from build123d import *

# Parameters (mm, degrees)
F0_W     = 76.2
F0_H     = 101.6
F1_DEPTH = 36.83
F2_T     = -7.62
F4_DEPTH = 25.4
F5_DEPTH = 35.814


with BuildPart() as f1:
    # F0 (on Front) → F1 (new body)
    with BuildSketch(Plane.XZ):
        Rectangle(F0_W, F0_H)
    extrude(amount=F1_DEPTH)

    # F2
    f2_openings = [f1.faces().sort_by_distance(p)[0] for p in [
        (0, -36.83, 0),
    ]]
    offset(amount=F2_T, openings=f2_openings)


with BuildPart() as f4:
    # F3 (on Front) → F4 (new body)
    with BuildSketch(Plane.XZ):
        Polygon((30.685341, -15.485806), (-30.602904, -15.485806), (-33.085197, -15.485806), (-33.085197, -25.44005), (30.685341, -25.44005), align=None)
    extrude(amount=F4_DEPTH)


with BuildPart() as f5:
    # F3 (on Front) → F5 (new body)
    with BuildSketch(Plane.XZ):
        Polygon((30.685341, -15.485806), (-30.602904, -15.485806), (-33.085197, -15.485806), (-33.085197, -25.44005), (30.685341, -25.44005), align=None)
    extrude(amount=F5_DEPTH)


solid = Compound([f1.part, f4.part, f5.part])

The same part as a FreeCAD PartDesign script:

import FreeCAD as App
import Part
import Sketcher
from FreeCAD import Vector
Q = App.Units.Quantity


def faces_at(feature, points):
    """Names of the faces that lie closest to the given points."""
    faces = feature.Shape.Faces
    near = lambda p: min(range(len(faces)), key=lambda i: faces[i].distToShape(Part.Vertex(*p))[0])
    return sorted({f"Face{near(p) + 1}" for p in points})


def add_polygon(sketch, points):
    """Adds a closed chain of lines whose ends are joined by coincident constraints."""
    first, n = sketch.GeometryCount, len(points)
    for a, b in zip(points, points[1:] + points[:1]):
        sketch.addGeometry(Part.LineSegment(App.Vector(*a, 0), App.Vector(*b, 0)), False)
    for i in range(n):
        sketch.addConstraint(Sketcher.Constraint("Coincident", first + i, 2, first + (i + 1) % n, 1))

doc = App.newDocument("Part")
body = doc.addObject("PartDesign::Body", "Body")

sketch1 = body.newObject("Sketcher::SketchObject", "Sketch")
sketch1.AttachmentSupport = (doc.getObject("XZ_Plane"), [""])
sketch1.MapMode = "FlatFace"
add_polygon(sketch1, [(-38, 51), (-38, -51), (38, -51), (38, 51)])
sketch1.addConstraint(Sketcher.Constraint("Vertical", 0))
sketch1.addConstraint(Sketcher.Constraint("Horizontal", 1))
sketch1.addConstraint(Sketcher.Constraint("Vertical", 2))
sketch1.addConstraint(Sketcher.Constraint("Horizontal", 3))
sketch1.addConstraint(Sketcher.Constraint("Symmetric", 0, 2, 2, 2, -1, 1))
sketch1.addConstraint(Sketcher.Constraint("DistanceX", 1, 1, 1, 2, Q("3 in")))
sketch1.addConstraint(Sketcher.Constraint("DistanceY", 0, 2, 0, 1, Q("4 in")))
pad1 = body.newObject("PartDesign::Pad", "Pad")
pad1.Profile = sketch1
pad1.Length = Q("1.45 in")
doc.recompute()

thickness = body.newObject("PartDesign::Thickness", "Thickness")
thickness.Base = (pad1, faces_at(pad1, [(0, -36.83, 0)]))
thickness.Value = Q("0.3 in")
thickness.Reversed = True
thickness.Join = "Arc"
body2 = doc.addObject("PartDesign::Body", "Body001")

sketch2 = body2.newObject("Sketcher::SketchObject", "Sketch001")
sketch2.AttachmentSupport = (doc.getObject("XZ_Plane001"), [""])
sketch2.MapMode = "FlatFace"
add_polygon(sketch2, [(31, -15), (-33, -15), (-33, -25), (31, -25)])
sketch2.addConstraint(Sketcher.Constraint("Horizontal", 0))
sketch2.addConstraint(Sketcher.Constraint("Vertical", 1))
sketch2.addConstraint(Sketcher.Constraint("Horizontal", 2))
sketch2.addConstraint(Sketcher.Constraint("Vertical", 3))
sketch2.addConstraint(Sketcher.Constraint("DistanceX", 0, 2, 0, 1, 63.770538))
sketch2.addConstraint(Sketcher.Constraint("DistanceY", 1, 2, 1, 1, 9.954244))
sketch2.addConstraint(Sketcher.Constraint("DistanceY", 1, 2, -1, 1, 25.44005))
sketch2.addConstraint(Sketcher.Constraint("DistanceX", -1, 1, 2, 2, 30.685341))
pad2 = body2.newObject("PartDesign::Pad", "Pad001")
pad2.Profile = sketch2
pad2.Length = Q("1 in")
body3 = doc.addObject("PartDesign::Body", "Body002")

sketch3 = body3.newObject("Sketcher::SketchObject", "Sketch002")
sketch3.AttachmentSupport = (doc.getObject("XZ_Plane002"), [""])
sketch3.MapMode = "FlatFace"
add_polygon(sketch3, [(31, -15), (-33, -15), (-33, -25), (31, -25)])
sketch3.addConstraint(Sketcher.Constraint("Horizontal", 0))
sketch3.addConstraint(Sketcher.Constraint("Vertical", 1))
sketch3.addConstraint(Sketcher.Constraint("Horizontal", 2))
sketch3.addConstraint(Sketcher.Constraint("Vertical", 3))
sketch3.addConstraint(Sketcher.Constraint("DistanceX", 0, 2, 0, 1, 63.770538))
sketch3.addConstraint(Sketcher.Constraint("DistanceY", 1, 2, 1, 1, 9.954244))
sketch3.addConstraint(Sketcher.Constraint("DistanceY", 1, 2, -1, 1, 25.44005))
sketch3.addConstraint(Sketcher.Constraint("DistanceX", -1, 1, 2, 2, 30.685341))
pad3 = body3.newObject("PartDesign::Pad", "Pad002")
pad3.Profile = sketch3
pad3.Length = Q("1.41 in")

doc.recompute()
